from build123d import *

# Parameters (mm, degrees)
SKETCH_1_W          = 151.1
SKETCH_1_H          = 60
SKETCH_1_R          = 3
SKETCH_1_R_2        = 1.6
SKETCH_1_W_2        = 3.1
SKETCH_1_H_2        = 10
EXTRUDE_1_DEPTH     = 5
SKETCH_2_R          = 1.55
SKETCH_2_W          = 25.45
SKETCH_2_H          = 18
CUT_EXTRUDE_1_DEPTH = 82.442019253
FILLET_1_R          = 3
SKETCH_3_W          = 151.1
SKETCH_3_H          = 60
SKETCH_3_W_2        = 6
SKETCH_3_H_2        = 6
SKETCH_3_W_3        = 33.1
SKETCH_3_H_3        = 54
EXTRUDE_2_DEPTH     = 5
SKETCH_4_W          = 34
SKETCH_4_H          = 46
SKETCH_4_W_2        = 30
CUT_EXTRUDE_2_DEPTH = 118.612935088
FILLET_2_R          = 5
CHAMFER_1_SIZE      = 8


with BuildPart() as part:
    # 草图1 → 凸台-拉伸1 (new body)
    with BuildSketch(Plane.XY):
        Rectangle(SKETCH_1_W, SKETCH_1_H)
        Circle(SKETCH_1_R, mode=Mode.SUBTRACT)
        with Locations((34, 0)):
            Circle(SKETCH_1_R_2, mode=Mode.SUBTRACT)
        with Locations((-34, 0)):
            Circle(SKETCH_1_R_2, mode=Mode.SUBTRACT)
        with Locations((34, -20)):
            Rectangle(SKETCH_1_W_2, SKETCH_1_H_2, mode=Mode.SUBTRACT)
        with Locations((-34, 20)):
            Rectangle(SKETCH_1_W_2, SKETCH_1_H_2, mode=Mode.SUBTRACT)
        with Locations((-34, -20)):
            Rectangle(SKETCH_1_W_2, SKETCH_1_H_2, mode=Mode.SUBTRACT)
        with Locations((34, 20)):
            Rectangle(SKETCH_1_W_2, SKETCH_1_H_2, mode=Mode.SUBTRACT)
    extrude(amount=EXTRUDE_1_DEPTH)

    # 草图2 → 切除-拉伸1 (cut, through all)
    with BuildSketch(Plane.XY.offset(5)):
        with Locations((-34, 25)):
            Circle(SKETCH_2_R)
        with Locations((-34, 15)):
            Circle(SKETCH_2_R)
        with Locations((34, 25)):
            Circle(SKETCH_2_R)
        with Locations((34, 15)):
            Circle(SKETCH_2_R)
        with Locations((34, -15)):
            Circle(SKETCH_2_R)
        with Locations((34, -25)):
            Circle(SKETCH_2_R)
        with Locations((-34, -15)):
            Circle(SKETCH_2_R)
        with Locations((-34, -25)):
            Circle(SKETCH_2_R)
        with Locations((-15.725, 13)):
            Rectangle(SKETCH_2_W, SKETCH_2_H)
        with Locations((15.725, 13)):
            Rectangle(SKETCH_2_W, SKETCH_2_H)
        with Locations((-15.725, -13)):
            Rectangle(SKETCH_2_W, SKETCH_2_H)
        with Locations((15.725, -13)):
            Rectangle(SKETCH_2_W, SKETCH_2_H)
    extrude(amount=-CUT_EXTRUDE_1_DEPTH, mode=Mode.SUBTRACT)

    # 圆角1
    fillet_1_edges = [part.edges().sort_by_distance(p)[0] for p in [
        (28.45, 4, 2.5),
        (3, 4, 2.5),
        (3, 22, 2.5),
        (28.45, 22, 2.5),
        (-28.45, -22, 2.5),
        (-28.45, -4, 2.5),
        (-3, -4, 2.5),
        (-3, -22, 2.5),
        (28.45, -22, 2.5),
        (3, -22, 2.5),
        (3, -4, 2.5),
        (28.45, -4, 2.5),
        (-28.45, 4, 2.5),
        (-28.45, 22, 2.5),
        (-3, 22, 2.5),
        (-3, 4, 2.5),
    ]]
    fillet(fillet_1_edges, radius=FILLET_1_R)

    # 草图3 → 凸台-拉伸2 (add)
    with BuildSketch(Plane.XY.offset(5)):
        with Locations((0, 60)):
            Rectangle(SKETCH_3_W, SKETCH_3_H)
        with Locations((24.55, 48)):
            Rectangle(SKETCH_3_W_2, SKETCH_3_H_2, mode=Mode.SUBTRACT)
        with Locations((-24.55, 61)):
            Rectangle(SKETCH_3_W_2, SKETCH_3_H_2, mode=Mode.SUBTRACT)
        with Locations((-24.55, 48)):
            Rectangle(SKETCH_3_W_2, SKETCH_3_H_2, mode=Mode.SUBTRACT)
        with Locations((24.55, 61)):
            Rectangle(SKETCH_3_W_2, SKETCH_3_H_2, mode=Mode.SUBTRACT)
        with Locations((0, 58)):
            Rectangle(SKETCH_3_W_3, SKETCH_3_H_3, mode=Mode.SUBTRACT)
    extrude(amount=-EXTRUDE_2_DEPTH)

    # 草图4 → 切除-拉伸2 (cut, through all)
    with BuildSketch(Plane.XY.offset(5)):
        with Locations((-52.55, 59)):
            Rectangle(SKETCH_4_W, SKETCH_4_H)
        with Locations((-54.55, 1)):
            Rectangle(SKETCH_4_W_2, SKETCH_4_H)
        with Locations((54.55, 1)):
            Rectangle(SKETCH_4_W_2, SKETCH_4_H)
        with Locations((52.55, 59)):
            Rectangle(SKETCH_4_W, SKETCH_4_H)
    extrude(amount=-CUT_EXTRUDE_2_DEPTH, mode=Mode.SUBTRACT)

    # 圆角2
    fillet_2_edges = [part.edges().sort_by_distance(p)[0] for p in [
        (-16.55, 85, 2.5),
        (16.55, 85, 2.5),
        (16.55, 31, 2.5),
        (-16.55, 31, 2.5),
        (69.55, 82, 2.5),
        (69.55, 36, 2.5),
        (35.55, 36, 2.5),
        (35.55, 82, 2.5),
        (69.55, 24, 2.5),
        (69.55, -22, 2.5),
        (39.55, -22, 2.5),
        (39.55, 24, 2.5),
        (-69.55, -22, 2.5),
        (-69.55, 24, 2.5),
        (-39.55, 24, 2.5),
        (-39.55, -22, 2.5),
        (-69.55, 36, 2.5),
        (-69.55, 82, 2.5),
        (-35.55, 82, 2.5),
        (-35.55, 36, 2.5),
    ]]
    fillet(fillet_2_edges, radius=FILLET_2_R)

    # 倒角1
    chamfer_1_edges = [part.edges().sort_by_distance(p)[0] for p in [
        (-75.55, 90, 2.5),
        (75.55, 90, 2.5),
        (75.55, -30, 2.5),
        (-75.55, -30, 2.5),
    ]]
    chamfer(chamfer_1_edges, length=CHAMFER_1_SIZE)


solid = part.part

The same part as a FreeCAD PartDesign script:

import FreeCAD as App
import Part
import Sketcher


def edges_at(feature, points):
    """Names of the edges that pass closest to the given points."""
    edges = feature.Shape.Edges
    near = lambda p: min(range(len(edges)), key=lambda i: edges[i].distToShape(Part.Vertex(*p))[0])
    return sorted({f"Edge{near(p) + 1}" for p in points})


def add_polygon(sketch, points):
    """Adds a closed chain of lines whose ends are joined by coincident constraints."""
    first, n = sketch.GeometryCount, len(points)
    for a, b in zip(points, points[1:] + points[:1]):
        sketch.addGeometry(Part.LineSegment(App.Vector(*a, 0), App.Vector(*b, 0)), False)
    for i in range(n):
        sketch.addConstraint(Sketcher.Constraint("Coincident", first + i, 2, first + (i + 1) % n, 1))

doc = App.newDocument("Part")
body = doc.addObject("PartDesign::Body", "Body")

# Sketch on XY plane
sketch1 = body.newObject("Sketcher::SketchObject", "Sketch")
sketch1.AttachmentSupport = (doc.getObject("XY_Plane"), [""])
sketch1.MapMode = "FlatFace"
add_polygon(sketch1, [(-75.5, 30), (-75.5, -30), (75.5, -30), (75.5, 30)])  # lines 0-3
add_polygon(sketch1, [(-32.5, -25), (-35.5, -25), (-35.5, -15), (-32.5, -15)])  # lines 4-7
add_polygon(sketch1, [(35.5, -25), (32.5, -25), (32.5, -15), (35.5, -15)])  # lines 8-11
sketch1.addGeometry(Part.Circle(App.Vector(-34, 0, 0), App.Vector(0, 0, 1), 1.6), False)  # 12
add_polygon(sketch1, [(-32.5, 15), (-35.5, 15), (-35.5, 25), (-32.5, 25)])  # lines 13-16
sketch1.addGeometry(Part.Circle(App.Vector(0, 0, 0), App.Vector(0, 0, 1), 3), False)  # 17
sketch1.addGeometry(Part.Circle(App.Vector(34, 0, 0), App.Vector(0, 0, 1), 1.6), False)  # 18
add_polygon(sketch1, [(35.5, 15), (32.5, 15), (32.5, 25), (35.5, 25)])  # lines 19-22
sketch1.addConstraint([
    Sketcher.Constraint("Vertical", 0),
    Sketcher.Constraint("Horizontal", 1),
    Sketcher.Constraint("Vertical", 2),
    Sketcher.Constraint("Horizontal", 3),
    Sketcher.Constraint("Horizontal", 4),
    Sketcher.Constraint("Vertical", 5),
    Sketcher.Constraint("Horizontal", 6),
    Sketcher.Constraint("Vertical", 7),
    Sketcher.Constraint("Horizontal", 8),
    Sketcher.Constraint("Vertical", 9),
    Sketcher.Constraint("Horizontal", 10),
    Sketcher.Constraint("Vertical", 11),
    Sketcher.Constraint("Horizontal", 13),
    Sketcher.Constraint("Vertical", 14),
    Sketcher.Constraint("Horizontal", 15),
    Sketcher.Constraint("Vertical", 16),
    Sketcher.Constraint("Horizontal", 19),
    Sketcher.Constraint("Vertical", 20),
    Sketcher.Constraint("Horizontal", 21),
    Sketcher.Constraint("Vertical", 22),
    Sketcher.Constraint("Coincident", 17, 3, -1, 1),
    Sketcher.Constraint("Equal", 12, 18),
    Sketcher.Constraint("Symmetric", 12, 3, 18, 3, -1, 1),
    Sketcher.Constraint("Symmetric", 0, 2, 2, 2, -1, 1),
    Sketcher.Constraint("Symmetric", 10, 2, 13, 2, -1, 1),
    Sketcher.Constraint("Symmetric", 8, 2, 15, 2, -1, 1),
    Sketcher.Constraint("Symmetric", 6, 2, 19, 2, -1, 1),
    Sketcher.Constraint("Symmetric", 4, 2, 21, 2, -1, 1),
    Sketcher.Constraint("Symmetric", 7, 2, 8, 2, -2),
    Sketcher.Constraint("Symmetric", 5, 2, 10, 2, -2),
    Sketcher.Constraint("PointOnObject", 12, 3, -1),
    Sketcher.Constraint("Diameter", 17, 6.0),
    Sketcher.Constraint("Diameter", 12, 3.2),
    Sketcher.Constraint("DistanceY", 0, 2, 0, 1, 60.0),
    Sketcher.Constraint("DistanceY", 5, 1, 5, 2, 10.0),
    Sketcher.Constraint("DistanceX", 1, 1, 1, 2, 151.1),
    Sketcher.Constraint("DistanceX", 4, 2, 4, 1, 3.1),
    Sketcher.Constraint("DistanceX", 12, 3, -1, 1, 34.0),
    Sketcher.Constraint("DistanceY", 4, 2, -1, 1, 25.0),
    Sketcher.Constraint("DistanceX", 0, 2, 4, 2, 40.0),
])
pad1 = body.newObject("PartDesign::Pad", "Pad")
pad1.Profile = sketch1
pad1.Length = 5

# Sketch on XY plane
sketch2 = body.newObject("Sketcher::SketchObject", "Sketch001")
sketch2.AttachmentSupport = (doc.getObject("XY_Plane"), [""])
sketch2.MapMode = "FlatFace"
sketch2.AttachmentOffset = App.Placement(App.Vector(0, 0, 5), App.Rotation())
sketch2.addGeometry(Part.Circle(App.Vector(-34, 25, 0), App.Vector(0, 0, 1), 1.6), False)  # 0
sketch2.addGeometry(Part.Circle(App.Vector(-34, 15, 0), App.Vector(0, 0, 1), 1.6), False)  # 1
sketch2.addGeometry(Part.Circle(App.Vector(34, 25, 0), App.Vector(0, 0, 1), 1.6), False)  # 2
sketch2.addGeometry(Part.Circle(App.Vector(34, 15, 0), App.Vector(0, 0, 1), 1.6), False)  # 3
sketch2.addGeometry(Part.Circle(App.Vector(34, -15, 0), App.Vector(0, 0, 1), 1.6), False)  # 4
sketch2.addGeometry(Part.Circle(App.Vector(34, -25, 0), App.Vector(0, 0, 1), 1.6), False)  # 5
sketch2.addGeometry(Part.Circle(App.Vector(-34, -15, 0), App.Vector(0, 0, 1), 1.6), False)  # 6
sketch2.addGeometry(Part.Circle(App.Vector(-34, -25, 0), App.Vector(0, 0, 1), 1.6), False)  # 7
add_polygon(sketch2, [(-28.4, 22), (-28.4, 4), (-3, 4), (-3, 22)])  # lines 8-11
add_polygon(sketch2, [(3, 22), (3, 4), (28.4, 4), (28.4, 22)])  # lines 12-15
add_polygon(sketch2, [(-28.4, -4), (-28.4, -22), (-3, -22), (-3, -4)])  # lines 16-19
add_polygon(sketch2, [(3, -4), (3, -22), (28.4, -22), (28.4, -4)])  # lines 20-23
sketch2.addConstraint([
    Sketcher.Constraint("Vertical", 8),
    Sketcher.Constraint("Horizontal", 9),
    Sketcher.Constraint("Vertical", 10),
    Sketcher.Constraint("Horizontal", 11),
    Sketcher.Constraint("Vertical", 12),
    Sketcher.Constraint("Horizontal", 13),
    Sketcher.Constraint("Vertical", 14),
    Sketcher.Constraint("Horizontal", 15),
    Sketcher.Constraint("Vertical", 16),
    Sketcher.Constraint("Horizontal", 17),
    Sketcher.Constraint("Vertical", 18),
    Sketcher.Constraint("Horizontal", 19),
    Sketcher.Constraint("Vertical", 20),
    Sketcher.Constraint("Horizontal", 21),
    Sketcher.Constraint("Vertical", 22),
    Sketcher.Constraint("Horizontal", 23),
    Sketcher.Constraint("Equal", 0, 1),
    Sketcher.Constraint("Equal", 1, 2),
    Sketcher.Constraint("Equal", 2, 3),
    Sketcher.Constraint("Equal", 3, 4),
    Sketcher.Constraint("Equal", 4, 5),
    Sketcher.Constraint("Equal", 5, 6),
    Sketcher.Constraint("Equal", 6, 7),
    Sketcher.Constraint("Symmetric", 1, 3, 4, 3, -1, 1),
    Sketcher.Constraint("Symmetric", 0, 3, 5, 3, -1, 1),
    Sketcher.Constraint("Symmetric", 3, 3, 6, 3, -1, 1),
    Sketcher.Constraint("Symmetric", 2, 3, 7, 3, -1, 1),
    Sketcher.Constraint("Symmetric", 14, 2, 16, 2, -1, 1),
    Sketcher.Constraint("Symmetric", 12, 2, 18, 2, -1, 1),
    Sketcher.Constraint("Symmetric", 10, 2, 20, 2, -1, 1),
    Sketcher.Constraint("Symmetric", 8, 2, 22, 2, -1, 1),
    Sketcher.Constraint("Symmetric", 0, 3, 2, 3, -2),
    Sketcher.Constraint("Symmetric", 1, 3, 3, 3, -2),
    Sketcher.Constraint("Symmetric", 9, 2, 12, 2, -2),
    Sketcher.Constraint("Symmetric", 11, 2, 14, 2, -2),
    Sketcher.Constraint("Vertical", 0, 3, 1, 3),
    Sketcher.Constraint("Diameter", 0, 3.1),
    Sketcher.Constraint("DistanceY", 8, 2, 8, 1, 18.0),
    Sketcher.Constraint("DistanceX", 0, 3, -1, 1, 34.0),
    Sketcher.Constraint("DistanceY", -1, 1, 0, 3, 25.0),
    Sketcher.Constraint("DistanceY", -1, 1, 1, 3, 15.0),
    Sketcher.Constraint("DistanceY", -1, 1, 8, 2, 4.0),
    Sketcher.Constraint("DistanceX", 9, 2, -1, 1, 3.0),
    Sketcher.Constraint("DistanceX", 9, 1, 9, 2, 25.45),
])
pocket1 = body.newObject("PartDesign::Pocket", "Pocket")
pocket1.Profile = sketch2
pocket1.Type = "ThroughAll"
doc.recompute()

fillet = body.newObject("PartDesign::Fillet", "Fillet")
fillet.Base = (pocket1, edges_at(pocket1, [
    (28.45, 4, 2.5),
    (3, 4, 2.5),
    (3, 22, 2.5),
    (28.45, 22, 2.5),
    (-28.45, -22, 2.5),
    (-28.45, -4, 2.5),
    (-3, -4, 2.5),
    (-3, -22, 2.5),
    (28.45, -22, 2.5),
    (3, -22, 2.5),
    (3, -4, 2.5),
    (28.45, -4, 2.5),
    (-28.45, 4, 2.5),
    (-28.45, 22, 2.5),
    (-3, 22, 2.5),
    (-3, 4, 2.5),
]))
fillet.Radius = 3

# Sketch on XY plane
sketch3 = body.newObject("Sketcher::SketchObject", "Sketch002")
sketch3.AttachmentSupport = (doc.getObject("XY_Plane"), [""])
sketch3.MapMode = "FlatFace"
sketch3.AttachmentOffset = App.Placement(App.Vector(0, 0, 5), App.Rotation())
add_polygon(sketch3, [(-76, 90), (-76, 30), (76, 30), (76, 90)])  # lines 0-3
add_polygon(sketch3, [(-22, 45), (-28, 45), (-28, 51), (-22, 51)])  # lines 4-7
add_polygon(sketch3, [(28, 45), (22, 45), (22, 51), (28, 51)])  # lines 8-11
add_polygon(sketch3, [(-22, 58), (-28, 58), (-28, 64), (-22, 64)])  # lines 12-15
add_polygon(sketch3, [(17, 31), (-17, 31), (-17, 85), (17, 85)])  # lines 16-19
add_polygon(sketch3, [(28, 58), (22, 58), (22, 64), (28, 64)])  # lines 20-23
sketch3.addConstraint([
    Sketcher.Constraint("Vertical", 0),
    Sketcher.Constraint("Horizontal", 1),
    Sketcher.Constraint("Vertical", 2),
    Sketcher.Constraint("Horizontal", 3),
    Sketcher.Constraint("Horizontal", 4),
    Sketcher.Constraint("Vertical", 5),
    Sketcher.Constraint("Horizontal", 6),
    Sketcher.Constraint("Vertical", 7),
    Sketcher.Constraint("Horizontal", 8),
    Sketcher.Constraint("Vertical", 9),
    Sketcher.Constraint("Horizontal", 10),
    Sketcher.Constraint("Vertical", 11),
    Sketcher.Constraint("Horizontal", 12),
    Sketcher.Constraint("Vertical", 13),
    Sketcher.Constraint("Horizontal", 14),
    Sketcher.Constraint("Vertical", 15),
    Sketcher.Constraint("Horizontal", 16),
    Sketcher.Constraint("Vertical", 17),
    Sketcher.Constraint("Horizontal", 18),
    Sketcher.Constraint("Vertical", 19),
    Sketcher.Constraint("Horizontal", 20),
    Sketcher.Constraint("Vertical", 21),
    Sketcher.Constraint("Horizontal", 22),
    Sketcher.Constraint("Vertical", 23),
    Sketcher.Constraint("Symmetric", 7, 2, 8, 2, -2),
    Sketcher.Constraint("Symmetric", 5, 2, 10, 2, -2),
    Sketcher.Constraint("Symmetric", 15, 2, 20, 2, -2),
    Sketcher.Constraint("Symmetric", 13, 2, 22, 2, -2),
    Sketcher.Constraint("Vertical", 5, 2, 12, 2),
    Sketcher.Constraint("Vertical", 7, 2, 14, 2),
    Sketcher.Constraint("Equal", 22, 5),
    Sketcher.Constraint("Equal", 11, 13),
    Sketcher.Constraint("DistanceX", 4, 2, 4, 1, 6.0),
    Sketcher.Constraint("DistanceY", 0, 2, 0, 1, 60.0),
    Sketcher.Constraint("DistanceY", 17, 1, 17, 2, 54.0),
    Sketcher.Constraint("DistanceX", 1, 1, 1, 2, 151.1),
    Sketcher.Constraint("DistanceX", 16, 2, 16, 1, 33.1),
    Sketcher.Constraint("DistanceY", -1, 1, 0, 2, 30.0),
    Sketcher.Constraint("DistanceY", -1, 1, 4, 2, 45.0),
    Sketcher.Constraint("DistanceY", -1, 1, 12, 2, 58.0),
    Sketcher.Constraint("DistanceY", -1, 1, 16, 2, 31.0),
    Sketcher.Constraint("DistanceX", 0, 2, 4, 2, 48.0),
    Sketcher.Constraint("DistanceX", 8, 2, 1, 2, 54.0),
    Sketcher.Constraint("DistanceX", 7, 2, 16, 2, 5.0),
])
pad2 = body.newObject("PartDesign::Pad", "Pad001")
pad2.Profile = sketch3
pad2.Length = 5
pad2.Reversed = True

# Sketch on XY plane
sketch4 = body.newObject("Sketcher::SketchObject", "Sketch003")
sketch4.AttachmentSupport = (doc.getObject("XY_Plane"), [""])
sketch4.MapMode = "FlatFace"
sketch4.AttachmentOffset = App.Placement(App.Vector(0, 0, 5), App.Rotation())
add_polygon(sketch4, [(-70, 82), (-70, 36), (-36, 36), (-36, 82)])  # lines 0-3
add_polygon(sketch4, [(-70, 24), (-70, -22), (-40, -22), (-40, 24)])  # lines 4-7
add_polygon(sketch4, [(40, 24), (40, -22), (70, -22), (70, 24)])  # lines 8-11
add_polygon(sketch4, [(36, 82), (36, 36), (70, 36), (70, 82)])  # lines 12-15
sketch4.addConstraint([
    Sketcher.Constraint("Vertical", 0),
    Sketcher.Constraint("Horizontal", 1),
    Sketcher.Constraint("Vertical", 2),
    Sketcher.Constraint("Horizontal", 3),
    Sketcher.Constraint("Vertical", 4),
    Sketcher.Constraint("Horizontal", 5),
    Sketcher.Constraint("Vertical", 6),
    Sketcher.Constraint("Horizontal", 7),
    Sketcher.Constraint("Vertical", 8),
    Sketcher.Constraint("Horizontal", 9),
    Sketcher.Constraint("Vertical", 10),
    Sketcher.Constraint("Horizontal", 11),
    Sketcher.Constraint("Vertical", 12),
    Sketcher.Constraint("Horizontal", 13),
    Sketcher.Constraint("Vertical", 14),
    Sketcher.Constraint("Horizontal", 15),
    Sketcher.Constraint("Symmetric", 5, 2, 8, 2, -2),
    Sketcher.Constraint("Symmetric", 7, 2, 10, 2, -2),
    Sketcher.Constraint("Symmetric", 1, 2, 12, 2, -2),
    Sketcher.Constraint("Symmetric", 3, 2, 14, 2, -2),
    Sketcher.Constraint("Vertical", 3, 2, 4, 2),
    Sketcher.Constraint("Equal", 2, 4),
    Sketcher.Constraint("DistanceX", 1, 1, 1, 2, 34.0),
    Sketcher.Constraint("DistanceX", 5, 1, 5, 2, 30.0),
    Sketcher.Constraint("DistanceY", 0, 2, 0, 1, 46.0),
    Sketcher.Constraint("DistanceY", -1, 1, 0, 2, 36.0),
    Sketcher.Constraint("DistanceY", 4, 2, -1, 1, 22.0),
    Sketcher.Constraint("DistanceX", 5, 2, 8, 2, 79.1),
])
pocket2 = body.newObject("PartDesign::Pocket", "Pocket001")
pocket2.Profile = sketch4
pocket2.Type = "ThroughAll"
doc.recompute()

fillet2 = body.newObject("PartDesign::Fillet", "Fillet001")
fillet2.Base = (pocket2, edges_at(pocket2, [
    (-16.55, 85, 2.5),
    (16.55, 85, 2.5),
    (16.55, 31, 2.5),
    (-16.55, 31, 2.5),
    (69.55, 82, 2.5),
    (69.55, 36, 2.5),
    (35.55, 36, 2.5),
    (35.55, 82, 2.5),
    (69.55, 24, 2.5),
    (69.55, -22, 2.5),
    (39.55, -22, 2.5),
    (39.55, 24, 2.5),
    (-69.55, -22, 2.5),
    (-69.55, 24, 2.5),
    (-39.55, 24, 2.5),
    (-39.55, -22, 2.5),
    (-69.55, 36, 2.5),
    (-69.55, 82, 2.5),
    (-35.55, 82, 2.5),
    (-35.55, 36, 2.5),
]))
fillet2.Radius = 5
doc.recompute()

chamfer = body.newObject("PartDesign::Chamfer", "Chamfer")
chamfer.Base = (fillet2, edges_at(fillet2, [
    (-75.55, 90, 2.5),
    (75.55, 90, 2.5),
    (75.55, -30, 2.5),
    (-75.55, -30, 2.5),
]))
chamfer.Size = 8

doc.recompute()
